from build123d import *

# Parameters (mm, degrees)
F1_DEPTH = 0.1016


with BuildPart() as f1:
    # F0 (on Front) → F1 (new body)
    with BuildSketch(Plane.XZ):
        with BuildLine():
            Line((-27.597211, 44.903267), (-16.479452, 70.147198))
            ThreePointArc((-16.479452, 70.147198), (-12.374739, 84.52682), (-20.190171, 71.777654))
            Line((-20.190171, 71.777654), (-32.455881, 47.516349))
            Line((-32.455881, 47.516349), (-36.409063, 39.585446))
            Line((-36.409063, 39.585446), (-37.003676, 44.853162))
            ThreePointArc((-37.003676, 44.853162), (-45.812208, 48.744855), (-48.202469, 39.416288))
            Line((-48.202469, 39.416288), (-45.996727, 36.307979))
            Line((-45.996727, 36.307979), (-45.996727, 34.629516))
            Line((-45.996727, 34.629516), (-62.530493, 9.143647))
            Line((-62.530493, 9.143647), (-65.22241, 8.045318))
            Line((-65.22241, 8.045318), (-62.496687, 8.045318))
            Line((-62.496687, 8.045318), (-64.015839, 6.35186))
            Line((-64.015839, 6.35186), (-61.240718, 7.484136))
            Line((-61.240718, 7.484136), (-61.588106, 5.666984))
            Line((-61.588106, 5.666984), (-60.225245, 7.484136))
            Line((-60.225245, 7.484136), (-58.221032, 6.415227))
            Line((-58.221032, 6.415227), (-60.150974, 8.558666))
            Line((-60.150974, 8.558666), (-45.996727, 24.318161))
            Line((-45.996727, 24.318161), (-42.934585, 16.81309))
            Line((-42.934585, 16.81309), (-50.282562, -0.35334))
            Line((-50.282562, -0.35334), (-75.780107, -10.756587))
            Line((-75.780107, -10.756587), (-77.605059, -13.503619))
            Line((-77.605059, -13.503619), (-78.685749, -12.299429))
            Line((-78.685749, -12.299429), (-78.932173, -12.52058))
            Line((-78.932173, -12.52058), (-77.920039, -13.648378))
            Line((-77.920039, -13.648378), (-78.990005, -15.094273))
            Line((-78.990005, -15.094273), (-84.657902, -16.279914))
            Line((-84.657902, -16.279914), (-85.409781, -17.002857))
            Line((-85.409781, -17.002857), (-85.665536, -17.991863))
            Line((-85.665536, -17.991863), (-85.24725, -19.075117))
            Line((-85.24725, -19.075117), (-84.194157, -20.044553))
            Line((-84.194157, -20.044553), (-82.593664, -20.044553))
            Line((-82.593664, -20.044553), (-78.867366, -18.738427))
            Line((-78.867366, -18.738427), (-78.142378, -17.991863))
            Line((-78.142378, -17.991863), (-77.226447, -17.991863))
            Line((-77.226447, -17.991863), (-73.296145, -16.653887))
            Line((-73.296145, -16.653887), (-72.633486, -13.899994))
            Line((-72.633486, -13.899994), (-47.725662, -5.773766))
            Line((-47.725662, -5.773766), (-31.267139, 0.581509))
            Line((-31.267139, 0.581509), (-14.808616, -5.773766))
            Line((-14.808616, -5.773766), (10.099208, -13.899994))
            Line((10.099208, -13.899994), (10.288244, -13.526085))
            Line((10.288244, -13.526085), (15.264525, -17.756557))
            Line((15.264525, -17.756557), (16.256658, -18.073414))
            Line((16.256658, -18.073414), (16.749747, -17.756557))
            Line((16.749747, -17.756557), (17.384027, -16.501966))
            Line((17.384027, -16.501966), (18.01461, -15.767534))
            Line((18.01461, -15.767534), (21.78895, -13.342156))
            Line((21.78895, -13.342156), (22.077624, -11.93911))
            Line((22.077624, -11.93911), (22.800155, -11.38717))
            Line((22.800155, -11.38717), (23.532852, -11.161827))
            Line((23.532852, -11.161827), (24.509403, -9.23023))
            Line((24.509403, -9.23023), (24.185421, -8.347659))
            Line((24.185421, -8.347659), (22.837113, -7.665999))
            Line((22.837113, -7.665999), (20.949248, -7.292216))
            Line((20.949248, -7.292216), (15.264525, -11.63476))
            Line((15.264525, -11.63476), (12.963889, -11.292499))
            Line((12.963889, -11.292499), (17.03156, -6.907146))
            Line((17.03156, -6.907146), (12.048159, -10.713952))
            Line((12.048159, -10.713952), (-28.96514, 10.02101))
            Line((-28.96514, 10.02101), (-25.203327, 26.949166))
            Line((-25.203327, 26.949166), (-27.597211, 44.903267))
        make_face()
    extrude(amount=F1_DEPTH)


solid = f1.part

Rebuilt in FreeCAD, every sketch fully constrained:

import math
import FreeCAD as App
import Part
import Sketcher
Q = App.Units.Quantity

doc = App.newDocument("Part")
body = doc.addObject("PartDesign::Body", "Body")

# Sketch on XZ plane
sketch1 = doc.addObject("Sketcher::SketchObject", "Sketch")
body.addObject(sketch1)
sketch1.AttachmentSupport = (doc.XZ_Plane, [""])
sketch1.MapMode = "FlatFace"
sketch1.addGeometry([
    Part.LineSegment(App.Vector(-27.6, 44.9, 0), App.Vector(-16.48, 70.15, 0)),  # 0
    Part.ArcOfCircle(Part.Circle(App.Vector(-15.41, 77.62, 0), App.Vector(0, 0, 1), 7.55), math.radians(-98), math.radians(231)),  # 1
    Part.LineSegment(App.Vector(-20.19, 71.78, 0), App.Vector(-32.46, 47.52, 0)),  # 2
    Part.LineSegment(App.Vector(-32.46, 47.52, 0), App.Vector(-36.41, 39.59, 0)),  # 3
    Part.LineSegment(App.Vector(-36.41, 39.59, 0), App.Vector(-37, 44.85, 0)),  # 4
    Part.ArcOfCircle(Part.Circle(App.Vector(-43.06, 43.07, 0), App.Vector(0, 0, 1), 6.31), math.radians(16), math.radians(215)),  # 5
    Part.LineSegment(App.Vector(-48.2, 39.42, 0), App.Vector(-46, 36.31, 0)),  # 6
    Part.LineSegment(App.Vector(-46, 36.31, 0), App.Vector(-46, 34.63, 0)),  # 7
    Part.LineSegment(App.Vector(-46, 34.63, 0), App.Vector(-62.53, 9.14, 0)),  # 8
    Part.LineSegment(App.Vector(-62.53, 9.14, 0), App.Vector(-65.22, 8.05, 0)),  # 9
    Part.LineSegment(App.Vector(-65.22, 8.05, 0), App.Vector(-62.5, 8.05, 0)),  # 10
    Part.LineSegment(App.Vector(-62.5, 8.05, 0), App.Vector(-64.02, 6.35, 0)),  # 11
    Part.LineSegment(App.Vector(-64.02, 6.35, 0), App.Vector(-61.24, 7.48, 0)),  # 12
    Part.LineSegment(App.Vector(-61.24, 7.48, 0), App.Vector(-61.59, 5.67, 0)),  # 13
    Part.LineSegment(App.Vector(-61.59, 5.67, 0), App.Vector(-60.23, 7.48, 0)),  # 14
    Part.LineSegment(App.Vector(-60.23, 7.48, 0), App.Vector(-58.22, 6.42, 0)),  # 15
    Part.LineSegment(App.Vector(-58.22, 6.42, 0), App.Vector(-60.15, 8.56, 0)),  # 16
    Part.LineSegment(App.Vector(-60.15, 8.56, 0), App.Vector(-46, 24.32, 0)),  # 17
    Part.LineSegment(App.Vector(-46, 24.32, 0), App.Vector(-42.93, 16.81, 0)),  # 18
    Part.LineSegment(App.Vector(-42.93, 16.81, 0), App.Vector(-50.28, -0.35, 0)),  # 19
    Part.LineSegment(App.Vector(-50.28, -0.35, 0), App.Vector(-75.78, -10.76, 0)),  # 20
    Part.LineSegment(App.Vector(-75.78, -10.76, 0), App.Vector(-77.61, -13.5, 0)),  # 21
    Part.LineSegment(App.Vector(-77.61, -13.5, 0), App.Vector(-78.69, -12.3, 0)),  # 22
    Part.LineSegment(App.Vector(-78.69, -12.3, 0), App.Vector(-78.93, -12.52, 0)),  # 23
    Part.LineSegment(App.Vector(-78.93, -12.52, 0), App.Vector(-77.92, -13.65, 0)),  # 24
    Part.LineSegment(App.Vector(-77.92, -13.65, 0), App.Vector(-78.99, -15.09, 0)),  # 25
    Part.LineSegment(App.Vector(-78.99, -15.09, 0), App.Vector(-84.66, -16.28, 0)),  # 26
    Part.LineSegment(App.Vector(-84.66, -16.28, 0), App.Vector(-85.41, -17, 0)),  # 27
    Part.LineSegment(App.Vector(-85.41, -17, 0), App.Vector(-85.67, -17.99, 0)),  # 28
    Part.LineSegment(App.Vector(-85.67, -17.99, 0), App.Vector(-85.25, -19.08, 0)),  # 29
    Part.LineSegment(App.Vector(-85.25, -19.08, 0), App.Vector(-84.19, -20.04, 0)),  # 30
    Part.LineSegment(App.Vector(-84.19, -20.04, 0), App.Vector(-82.59, -20.04, 0)),  # 31
    Part.LineSegment(App.Vector(-82.59, -20.04, 0), App.Vector(-78.87, -18.74, 0)),  # 32
    Part.LineSegment(App.Vector(-78.87, -18.74, 0), App.Vector(-78.14, -17.99, 0)),  # 33
    Part.LineSegment(App.Vector(-78.14, -17.99, 0), App.Vector(-77.23, -17.99, 0)),  # 34
    Part.LineSegment(App.Vector(-77.23, -17.99, 0), App.Vector(-73.3, -16.65, 0)),  # 35
    Part.LineSegment(App.Vector(-73.3, -16.65, 0), App.Vector(-72.63, -13.9, 0)),  # 36
    Part.LineSegment(App.Vector(-72.63, -13.9, 0), App.Vector(-47.73, -5.77, 0)),  # 37
    Part.LineSegment(App.Vector(-47.73, -5.77, 0), App.Vector(-31.27, 0.58, 0)),  # 38
    Part.LineSegment(App.Vector(-31.27, 0.58, 0), App.Vector(-14.81, -5.77, 0)),  # 39
    Part.LineSegment(App.Vector(-14.81, -5.77, 0), App.Vector(10.1, -13.9, 0)),  # 40
    Part.LineSegment(App.Vector(10.1, -13.9, 0), App.Vector(10.29, -13.53, 0)),  # 41
    Part.LineSegment(App.Vector(10.29, -13.53, 0), App.Vector(15.26, -17.76, 0)),  # 42
    Part.LineSegment(App.Vector(15.26, -17.76, 0), App.Vector(16.26, -18.07, 0)),  # 43
    Part.LineSegment(App.Vector(16.26, -18.07, 0), App.Vector(16.75, -17.76, 0)),  # 44
    Part.LineSegment(App.Vector(16.75, -17.76, 0), App.Vector(17.38, -16.5, 0)),  # 45
    Part.LineSegment(App.Vector(17.38, -16.5, 0), App.Vector(18.01, -15.77, 0)),  # 46
    Part.LineSegment(App.Vector(18.01, -15.77, 0), App.Vector(21.79, -13.34, 0)),  # 47
    Part.LineSegment(App.Vector(21.79, -13.34, 0), App.Vector(22.08, -11.94, 0)),  # 48
    Part.LineSegment(App.Vector(22.08, -11.94, 0), App.Vector(22.8, -11.39, 0)),  # 49
    Part.LineSegment(App.Vector(22.8, -11.39, 0), App.Vector(23.53, -11.16, 0)),  # 50
    Part.LineSegment(App.Vector(23.53, -11.16, 0), App.Vector(24.51, -9.23, 0)),  # 51
    Part.LineSegment(App.Vector(24.51, -9.23, 0), App.Vector(24.19, -8.35, 0)),  # 52
    Part.LineSegment(App.Vector(24.19, -8.35, 0), App.Vector(22.84, -7.67, 0)),  # 53
    Part.LineSegment(App.Vector(22.84, -7.67, 0), App.Vector(20.95, -7.29, 0)),  # 54
    Part.LineSegment(App.Vector(20.95, -7.29, 0), App.Vector(15.26, -11.63, 0)),  # 55
    Part.LineSegment(App.Vector(15.26, -11.63, 0), App.Vector(12.96, -11.29, 0)),  # 56
    Part.LineSegment(App.Vector(12.96, -11.29, 0), App.Vector(17.03, -6.91, 0)),  # 57
    Part.LineSegment(App.Vector(17.03, -6.91, 0), App.Vector(12.05, -10.71, 0)),  # 58
    Part.LineSegment(App.Vector(12.05, -10.71, 0), App.Vector(-28.97, 10.02, 0)),  # 59
    Part.LineSegment(App.Vector(-28.97, 10.02, 0), App.Vector(-25.2, 26.95, 0)),  # 60
    Part.LineSegment(App.Vector(-25.2, 26.95, 0), App.Vector(-27.6, 44.9, 0)),  # 61
], False)
sketch1.addConstraint([
    Sketcher.Constraint("Coincident", 0, 2, 1, 1),
    Sketcher.Constraint("Coincident", 1, 2, 2, 1),
    Sketcher.Constraint("Coincident", 2, 2, 3, 1),
    Sketcher.Constraint("Coincident", 3, 2, 4, 1),
    Sketcher.Constraint("Coincident", 4, 2, 5, 1),
    Sketcher.Constraint("Tangent", 5, 2, 6, 1),
    Sketcher.Constraint("Coincident", 6, 2, 7, 1),
    Sketcher.Constraint("Coincident", 7, 2, 8, 1),
    Sketcher.Constraint("Coincident", 8, 2, 9, 1),
    Sketcher.Constraint("Coincident", 9, 2, 10, 1),
    Sketcher.Constraint("Coincident", 10, 2, 11, 1),
    Sketcher.Constraint("Coincident", 11, 2, 12, 1),
    Sketcher.Constraint("Coincident", 12, 2, 13, 1),
    Sketcher.Constraint("Coincident", 13, 2, 14, 1),
    Sketcher.Constraint("Coincident", 14, 2, 15, 1),
    Sketcher.Constraint("Coincident", 15, 2, 16, 1),
    Sketcher.Constraint("Coincident", 16, 2, 17, 1),
    Sketcher.Constraint("Coincident", 17, 2, 18, 1),
    Sketcher.Constraint("Coincident", 18, 2, 19, 1),
    Sketcher.Constraint("Coincident", 19, 2, 20, 1),
    Sketcher.Constraint("Coincident", 20, 2, 21, 1),
    Sketcher.Constraint("Coincident", 21, 2, 22, 1),
    Sketcher.Constraint("Coincident", 22, 2, 23, 1),
    Sketcher.Constraint("Coincident", 23, 2, 24, 1),
    Sketcher.Constraint("Coincident", 24, 2, 25, 1),
    Sketcher.Constraint("Coincident", 25, 2, 26, 1),
    Sketcher.Constraint("Coincident", 26, 2, 27, 1),
    Sketcher.Constraint("Coincident", 27, 2, 28, 1),
    Sketcher.Constraint("Coincident", 28, 2, 29, 1),
    Sketcher.Constraint("Coincident", 29, 2, 30, 1),
    Sketcher.Constraint("Coincident", 30, 2, 31, 1),
    Sketcher.Constraint("Coincident", 31, 2, 32, 1),
    Sketcher.Constraint("Coincident", 32, 2, 33, 1),
    Sketcher.Constraint("Coincident", 33, 2, 34, 1),
    Sketcher.Constraint("Coincident", 34, 2, 35, 1),
    Sketcher.Constraint("Coincident", 35, 2, 36, 1),
    Sketcher.Constraint("Coincident", 36, 2, 37, 1),
    Sketcher.Constraint("Coincident", 37, 2, 38, 1),
    Sketcher.Constraint("Coincident", 38, 2, 39, 1),
    Sketcher.Constraint("Coincident", 39, 2, 40, 1),
    Sketcher.Constraint("Coincident", 40, 2, 41, 1),
    Sketcher.Constraint("Coincident", 41, 2, 42, 1),
    Sketcher.Constraint("Coincident", 42, 2, 43, 1),
    Sketcher.Constraint("Coincident", 43, 2, 44, 1),
    Sketcher.Constraint("Coincident", 44, 2, 45, 1),
    Sketcher.Constraint("Coincident", 45, 2, 46, 1),
    Sketcher.Constraint("Coincident", 46, 2, 47, 1),
    Sketcher.Constraint("Coincident", 47, 2, 48, 1),
    Sketcher.Constraint("Coincident", 48, 2, 49, 1),
    Sketcher.Constraint("Coincident", 49, 2, 50, 1),
    Sketcher.Constraint("Coincident", 50, 2, 51, 1),
    Sketcher.Constraint("Coincident", 51, 2, 52, 1),
    Sketcher.Constraint("Coincident", 52, 2, 53, 1),
    Sketcher.Constraint("Coincident", 53, 2, 54, 1),
    Sketcher.Constraint("Coincident", 54, 2, 55, 1),
    Sketcher.Constraint("Coincident", 55, 2, 56, 1),
    Sketcher.Constraint("Coincident", 56, 2, 57, 1),
    Sketcher.Constraint("Coincident", 57, 2, 58, 1),
    Sketcher.Constraint("Coincident", 58, 2, 59, 1),
    Sketcher.Constraint("Coincident", 59, 2, 60, 1),
    Sketcher.Constraint("Coincident", 60, 2, 61, 1),
    Sketcher.Constraint("Coincident", 61, 2, 0, 1),
    Sketcher.Constraint("Vertical", 7),
    Sketcher.Constraint("Horizontal", 10),
    Sketcher.Constraint("Horizontal", 31),
    Sketcher.Constraint("Horizontal", 34),
    Sketcher.Constraint("Parallel", 9, 12),
    Sketcher.Constraint("Perpendicular", 12, 18),
    Sketcher.Constraint("Perpendicular", 18, 20),
    Sketcher.Constraint("Perpendicular", 22, 23),
    Sketcher.Constraint("Perpendicular", 23, 24),
    Sketcher.Constraint("Perpendicular", 29, 38),
    Sketcher.Constraint("Parallel", 2, 41),
    Sketcher.Constraint("Parallel", 41, 45),
    Sketcher.Constraint("Parallel", 44, 47),
    Sketcher.Constraint("Parallel", 45, 51),
    Sketcher.Constraint("Perpendicular", 51, 53),
    Sketcher.Constraint("Parallel", 49, 55),
    Sketcher.Constraint("Parallel", 55, 58),
    Sketcher.Constraint("Parallel", 53, 59),
    Sketcher.Constraint("Horizontal", 12, 2, 14, 2),
    Sketcher.Constraint("Horizontal", 28, 2, 33, 2),
    Sketcher.Constraint("Horizontal", 37, 2, 39, 2),
    Sketcher.Constraint("Horizontal", 36, 2, 40, 2),
    Sketcher.Constraint("Horizontal", 42, 2, 44, 2),
    Sketcher.Constraint("Vertical", 7, 2, 17, 2),
    Sketcher.Constraint("Vertical", 42, 2, 55, 2),
    Sketcher.Constraint("Equal", 14, 15),
    Sketcher.Constraint("Equal", 38, 39),
    Sketcher.Constraint("Equal", 37, 40),
    Sketcher.Constraint("Angle", 33, Q("45.840015 deg")),
    Sketcher.Constraint("Radius", 5, Q("6.310298 mm")),
    Sketcher.Constraint("Radius", 1, Q("7.546622 mm")),
    Sketcher.Constraint("Distance", 11, Q("2.275 mm")),
    Sketcher.Constraint("Distance", 20, Q("27.538198 mm")),
    Sketcher.Constraint("Distance", 35, Q("4.151801 mm")),
    Sketcher.Constraint("Distance", 43, Q("1.041502 mm")),
    Sketcher.Constraint("Distance", 46, Q("0.968001 mm")),
    Sketcher.Constraint("Distance", 60, Q("17.341099 mm")),
    Sketcher.Constraint("DistanceX", 34, 1, 34, 2, Q("0.915931 mm")),
    Sketcher.Constraint("DistanceY", -1, 1, 0, 2, Q("70.147198 mm")),
    Sketcher.Constraint("DistanceY", 53, 2, -1, 1, Q("7.665999 mm")),
    Sketcher.Constraint("DistanceY", 56, 2, -1, 1, Q("11.292499 mm")),
    Sketcher.Constraint("Distance", 2, Q("27.185632 mm")),
    Sketcher.Constraint("Distance", 3, Q("8.861539 mm")),
    Sketcher.Constraint("Distance", 4, Q("5.301169 mm")),
    Sketcher.Constraint("Distance", 9, Q("2.90736 mm")),
    Sketcher.Constraint("Distance", 13, Q("1.850059 mm")),
    Sketcher.Constraint("Distance", 14, Q("2.271438 mm")),
    Sketcher.Constraint("Distance", 16, Q("2.884269 mm")),
    Sketcher.Constraint("Distance", 19, Q("18.672951 mm")),
    Sketcher.Constraint("Distance", 23, Q("0.331108 mm")),
    Sketcher.Constraint("Distance", 24, Q("1.515369 mm")),
    Sketcher.Constraint("Distance", 26, Q("5.790579 mm")),
    Sketcher.Constraint("Distance", 28, Q("1.02154 mm")),
    Sketcher.Constraint("Distance", 37, Q("26.19991 mm")),
    Sketcher.Constraint("Distance", 44, Q("0.586119 mm")),
    Sketcher.Constraint("Distance", 51, Q("2.164421 mm")),
    Sketcher.Constraint("Distance", 57, Q("5.98141 mm")),
    Sketcher.Constraint("Distance", 58, Q("6.271049 mm")),
    Sketcher.Constraint("Distance", 59, Q("45.95682 mm")),
    Sketcher.Constraint("Distance", 61, Q("18.11299 mm")),
    Sketcher.Constraint("DistanceX", 10, 1, 10, 2, Q("2.725723 mm")),
    Sketcher.Constraint("DistanceX", 31, 1, 31, 2, Q("1.600493 mm")),
    Sketcher.Constraint("DistanceY", 7, 2, 7, 1, Q("1.678463 mm")),
    Sketcher.Constraint("DistanceX", 1, 3, -1, 1, Q("15.41053 mm")),
    Sketcher.Constraint("DistanceX", 0, 2, -1, 1, Q("16.479452 mm")),
    Sketcher.Constraint("DistanceX", 1, 2, -1, 1, Q("20.190171 mm")),
    Sketcher.Constraint("DistanceX", 2, 2, -1, 1, Q("32.455881 mm")),
    Sketcher.Constraint("DistanceY", -1, 1, 4, 2, Q("44.853162 mm")),
    Sketcher.Constraint("DistanceX", 5, 2, -1, 1, Q("48.202469 mm")),
    Sketcher.Constraint("DistanceY", -1, 1, 5, 2, Q("39.416288 mm")),
    Sketcher.Constraint("DistanceY", -1, 1, 6, 2, Q("36.307979 mm")),
    Sketcher.Constraint("DistanceX", 9, 2, -1, 1, Q("65.22241 mm")),
    Sketcher.Constraint("DistanceX", 11, 2, -1, 1, Q("64.015839 mm")),
    Sketcher.Constraint("DistanceY", -1, 1, 11, 2, Q("6.35186 mm")),
    Sketcher.Constraint("DistanceY", -1, 1, 17, 2, Q("24.318161 mm")),
    Sketcher.Constraint("DistanceY", -1, 1, 18, 2, Q("16.81309 mm")),
    Sketcher.Constraint("DistanceY", 19, 2, -1, 1, Q("0.35334 mm")),
    Sketcher.Constraint("DistanceX", 21, 2, -1, 1, Q("77.605059 mm")),
    Sketcher.Constraint("DistanceY", 21, 2, -1, 1, Q("13.503619 mm")),
    Sketcher.Constraint("DistanceX", 22, 2, -1, 1, Q("78.685749 mm")),
    Sketcher.Constraint("DistanceY", 22, 2, -1, 1, Q("12.299429 mm")),
    Sketcher.Constraint("DistanceX", 27, 2, -1, 1, Q("85.409781 mm")),
    Sketcher.Constraint("DistanceX", 29, 2, -1, 1, Q("85.24725 mm")),
    Sketcher.Constraint("DistanceX", 38, 2, -1, 1, Q("31.267139 mm")),
    Sketcher.Constraint("DistanceY", -1, 1, 38, 2, Q("0.581509 mm")),
    Sketcher.Constraint("DistanceX", -1, 1, 40, 2, Q("10.099208 mm")),
    Sketcher.Constraint("DistanceX", -1, 1, 43, 2, Q("16.256658 mm")),
    Sketcher.Constraint("DistanceX", -1, 1, 46, 2, Q("18.01461 mm")),
    Sketcher.Constraint("DistanceX", -1, 1, 47, 2, Q("21.78895 mm")),
    Sketcher.Constraint("DistanceY", 48, 2, -1, 1, Q("11.93911 mm")),
    Sketcher.Constraint("DistanceY", 49, 2, -1, 1, Q("11.38717 mm")),
    Sketcher.Constraint("DistanceX", -1, 1, 50, 2, Q("23.532852 mm")),
    Sketcher.Constraint("DistanceY", 51, 2, -1, 1, Q("9.23023 mm")),
    Sketcher.Constraint("DistanceX", -1, 1, 52, 2, Q("24.185421 mm")),
    Sketcher.Constraint("DistanceY", 52, 2, -1, 1, Q("8.347659 mm")),
    Sketcher.Constraint("DistanceX", -1, 1, 54, 2, Q("20.949248 mm")),
    Sketcher.Constraint("DistanceY", 55, 2, -1, 1, Q("11.63476 mm")),
    Sketcher.Constraint("DistanceX", -1, 1, 56, 2, Q("12.963889 mm")),
    Sketcher.Constraint("DistanceX", -1, 1, 57, 2, Q("17.03156 mm")),
    Sketcher.Constraint("DistanceX", -1, 1, 58, 2, Q("12.048159 mm")),
    Sketcher.Constraint("DistanceX", 61, 2, -1, 1, Q("27.597211 mm")),
    Sketcher.Constraint("Distance", 0, Q("27.583702 mm")),
    Sketcher.Constraint("Distance", 6, Q("3.811415 mm")),
    Sketcher.Constraint("Distance", 8, Q("30.379186 mm")),
    Sketcher.Constraint("Distance", 12, Q("2.997223 mm")),
    Sketcher.Constraint("Distance", 17, Q("21.182644 mm")),
    Sketcher.Constraint("Distance", 25, Q("1.798733 mm")),
    Sketcher.Constraint("Distance", 27, Q("1.043057 mm")),
    Sketcher.Constraint("Distance", 29, Q("1.161207 mm")),
    Sketcher.Constraint("Distance", 30, Q("1.431367 mm")),
    Sketcher.Constraint("Distance", 32, Q("3.948577 mm")),
    Sketcher.Constraint("Distance", 33, Q("1.040656 mm")),
    Sketcher.Constraint("Distance", 36, Q("2.832498 mm")),
    Sketcher.Constraint("Distance", 38, Q("17.642916 mm")),
    Sketcher.Constraint("Distance", 41, Q("0.418978 mm")),
    Sketcher.Constraint("Distance", 42, Q("6.531483 mm")),
    Sketcher.Constraint("Distance", 45, Q("1.405813 mm")),
    Sketcher.Constraint("Distance", 47, Q("4.486435 mm")),
    Sketcher.Constraint("Distance", 48, Q("1.432435 mm")),
    Sketcher.Constraint("Distance", 50, Q("0.766567 mm")),
    Sketcher.Constraint("DistanceX", 13, 2, -1, 1, Q("61.588106 mm")),
    Sketcher.Constraint("DistanceX", 15, 2, -1, 1, Q("58.221032 mm")),
    Sketcher.Constraint("DistanceX", 25, 2, -1, 1, Q("78.990005 mm")),
    Sketcher.Constraint("DistanceX", 26, 2, -1, 1, Q("84.657902 mm")),
    Sketcher.Constraint("DistanceX", 30, 2, -1, 1, Q("84.194157 mm")),
])
pad1 = doc.addObject("PartDesign::Pad", "Pad")
body.addObject(pad1)
pad1.Profile = sketch1
pad1.Length = Q("0.004 in")

doc.recompute()
